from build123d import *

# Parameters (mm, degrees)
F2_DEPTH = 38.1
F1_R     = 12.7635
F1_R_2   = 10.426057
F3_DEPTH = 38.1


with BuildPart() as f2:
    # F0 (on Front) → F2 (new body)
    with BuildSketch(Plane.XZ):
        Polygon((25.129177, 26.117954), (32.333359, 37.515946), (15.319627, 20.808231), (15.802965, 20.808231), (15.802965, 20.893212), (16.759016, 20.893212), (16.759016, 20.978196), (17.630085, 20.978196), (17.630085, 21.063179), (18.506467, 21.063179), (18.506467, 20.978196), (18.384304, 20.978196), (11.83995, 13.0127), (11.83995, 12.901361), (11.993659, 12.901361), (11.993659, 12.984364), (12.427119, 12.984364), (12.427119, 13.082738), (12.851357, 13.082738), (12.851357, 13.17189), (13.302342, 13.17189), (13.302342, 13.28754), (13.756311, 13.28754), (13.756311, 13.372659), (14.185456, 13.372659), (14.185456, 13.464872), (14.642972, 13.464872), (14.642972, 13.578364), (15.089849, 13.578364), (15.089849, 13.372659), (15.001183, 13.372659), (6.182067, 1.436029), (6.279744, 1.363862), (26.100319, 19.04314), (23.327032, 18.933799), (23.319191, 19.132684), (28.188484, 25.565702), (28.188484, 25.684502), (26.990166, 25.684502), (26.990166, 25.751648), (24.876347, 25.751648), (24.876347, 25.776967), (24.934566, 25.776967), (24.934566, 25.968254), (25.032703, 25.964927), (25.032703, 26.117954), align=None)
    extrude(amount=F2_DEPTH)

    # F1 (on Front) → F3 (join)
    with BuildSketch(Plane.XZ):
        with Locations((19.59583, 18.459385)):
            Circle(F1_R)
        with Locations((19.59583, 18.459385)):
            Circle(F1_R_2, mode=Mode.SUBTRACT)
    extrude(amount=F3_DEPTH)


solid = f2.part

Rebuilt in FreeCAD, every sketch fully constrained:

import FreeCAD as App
import Part
import Sketcher
from FreeCAD import Vector
Q = App.Units.Quantity

doc = App.newDocument("Part")
body = doc.addObject("PartDesign::Body", "Body")

sketch1 = doc.addObject("Sketcher::SketchObject", "Sketch")
body.addObject(sketch1)
sketch1.AttachmentSupport = (doc.XZ_Plane, [""])
sketch1.MapMode = "FlatFace"
sketch1.addGeometry(Part.LineSegment(Vector(25.129, 26.118, 0), Vector(32.333, 37.516, 0)), False)
sketch1.addGeometry(Part.LineSegment(Vector(32.333, 37.516, 0), Vector(15.32, 20.808, 0)), False)
sketch1.addGeometry(Part.LineSegment(Vector(15.32, 20.808, 0), Vector(15.803, 20.808, 0)), False)
sketch1.addGeometry(Part.LineSegment(Vector(15.803, 20.808, 0), Vector(15.803, 20.893, 0)), False)
sketch1.addGeometry(Part.LineSegment(Vector(15.803, 20.893, 0), Vector(16.759, 20.893, 0)), False)
sketch1.addGeometry(Part.LineSegment(Vector(16.759, 20.893, 0), Vector(16.759, 20.978, 0)), False)
sketch1.addGeometry(Part.LineSegment(Vector(16.759, 20.978, 0), Vector(17.63, 20.978, 0)), False)
sketch1.addGeometry(Part.LineSegment(Vector(17.63, 20.978, 0), Vector(17.63, 21.063, 0)), False)
sketch1.addGeometry(Part.LineSegment(Vector(17.63, 21.063, 0), Vector(18.506, 21.063, 0)), False)
sketch1.addGeometry(Part.LineSegment(Vector(18.506, 21.063, 0), Vector(18.506, 20.978, 0)), False)
sketch1.addGeometry(Part.LineSegment(Vector(18.506, 20.978, 0), Vector(18.384, 20.978, 0)), False)
sketch1.addGeometry(Part.LineSegment(Vector(18.384, 20.978, 0), Vector(11.84, 13.013, 0)), False)
sketch1.addGeometry(Part.LineSegment(Vector(11.84, 13.013, 0), Vector(11.84, 12.901, 0)), False)
sketch1.addGeometry(Part.LineSegment(Vector(11.84, 12.901, 0), Vector(11.994, 12.901, 0)), False)
sketch1.addGeometry(Part.LineSegment(Vector(11.994, 12.901, 0), Vector(11.994, 12.984, 0)), False)
sketch1.addGeometry(Part.LineSegment(Vector(11.994, 12.984, 0), Vector(12.427, 12.984, 0)), False)
sketch1.addGeometry(Part.LineSegment(Vector(12.427, 12.984, 0), Vector(12.427, 13.083, 0)), False)
sketch1.addGeometry(Part.LineSegment(Vector(12.427, 13.083, 0), Vector(12.851, 13.083, 0)), False)
sketch1.addGeometry(Part.LineSegment(Vector(12.851, 13.083, 0), Vector(12.851, 13.172, 0)), False)
sketch1.addGeometry(Part.LineSegment(Vector(12.851, 13.172, 0), Vector(13.302, 13.172, 0)), False)
sketch1.addGeometry(Part.LineSegment(Vector(13.302, 13.172, 0), Vector(13.302, 13.288, 0)), False)
sketch1.addGeometry(Part.LineSegment(Vector(13.302, 13.288, 0), Vector(13.756, 13.288, 0)), False)
sketch1.addGeometry(Part.LineSegment(Vector(13.756, 13.288, 0), Vector(13.756, 13.373, 0)), False)
sketch1.addGeometry(Part.LineSegment(Vector(13.756, 13.373, 0), Vector(14.185, 13.373, 0)), False)
sketch1.addGeometry(Part.LineSegment(Vector(14.185, 13.373, 0), Vector(14.185, 13.465, 0)), False)
sketch1.addGeometry(Part.LineSegment(Vector(14.185, 13.465, 0), Vector(14.643, 13.465, 0)), False)
sketch1.addGeometry(Part.LineSegment(Vector(14.643, 13.465, 0), Vector(14.643, 13.578, 0)), False)
sketch1.addGeometry(Part.LineSegment(Vector(14.643, 13.578, 0), Vector(15.09, 13.578, 0)), False)
sketch1.addGeometry(Part.LineSegment(Vector(15.09, 13.578, 0), Vector(15.09, 13.373, 0)), False)
sketch1.addGeometry(Part.LineSegment(Vector(15.09, 13.373, 0), Vector(15.001, 13.373, 0)), False)
sketch1.addGeometry(Part.LineSegment(Vector(15.001, 13.373, 0), Vector(6.182, 1.436, 0)), False)
sketch1.addGeometry(Part.LineSegment(Vector(6.182, 1.436, 0), Vector(6.28, 1.364, 0)), False)
sketch1.addGeometry(Part.LineSegment(Vector(6.28, 1.364, 0), Vector(26.1, 19.043, 0)), False)
sketch1.addGeometry(Part.LineSegment(Vector(26.1, 19.043, 0), Vector(23.327, 18.934, 0)), False)
sketch1.addGeometry(Part.LineSegment(Vector(23.327, 18.934, 0), Vector(23.319, 19.133, 0)), False)
sketch1.addGeometry(Part.LineSegment(Vector(23.319, 19.133, 0), Vector(28.188, 25.566, 0)), False)
sketch1.addGeometry(Part.LineSegment(Vector(28.188, 25.566, 0), Vector(28.188, 25.685, 0)), False)
sketch1.addGeometry(Part.LineSegment(Vector(28.188, 25.685, 0), Vector(26.99, 25.685, 0)), False)
sketch1.addGeometry(Part.LineSegment(Vector(26.99, 25.685, 0), Vector(26.99, 25.752, 0)), False)
sketch1.addGeometry(Part.LineSegment(Vector(26.99, 25.752, 0), Vector(24.876, 25.752, 0)), False)
sketch1.addGeometry(Part.LineSegment(Vector(24.876, 25.752, 0), Vector(24.876, 25.777, 0)), False)
sketch1.addGeometry(Part.LineSegment(Vector(24.876, 25.777, 0), Vector(24.935, 25.777, 0)), False)
sketch1.addGeometry(Part.LineSegment(Vector(24.935, 25.777, 0), Vector(24.935, 25.968, 0)), False)
sketch1.addGeometry(Part.LineSegment(Vector(24.935, 25.968, 0), Vector(25.033, 25.965, 0)), False)
sketch1.addGeometry(Part.LineSegment(Vector(25.033, 25.965, 0), Vector(25.033, 26.118, 0)), False)
sketch1.addGeometry(Part.LineSegment(Vector(25.033, 26.118, 0), Vector(25.129, 26.118, 0)), False)
sketch1.addConstraint(Sketcher.Constraint("Coincident", 0, 2, 1, 1))
sketch1.addConstraint(Sketcher.Constraint("Coincident", 1, 2, 2, 1))
sketch1.addConstraint(Sketcher.Constraint("Coincident", 2, 2, 3, 1))
sketch1.addConstraint(Sketcher.Constraint("Coincident", 3, 2, 4, 1))
sketch1.addConstraint(Sketcher.Constraint("Coincident", 4, 2, 5, 1))
sketch1.addConstraint(Sketcher.Constraint("Coincident", 5, 2, 6, 1))
sketch1.addConstraint(Sketcher.Constraint("Coincident", 6, 2, 7, 1))
sketch1.addConstraint(Sketcher.Constraint("Coincident", 7, 2, 8, 1))
sketch1.addConstraint(Sketcher.Constraint("Coincident", 8, 2, 9, 1))
sketch1.addConstraint(Sketcher.Constraint("Coincident", 9, 2, 10, 1))
sketch1.addConstraint(Sketcher.Constraint("Coincident", 10, 2, 11, 1))
sketch1.addConstraint(Sketcher.Constraint("Coincident", 11, 2, 12, 1))
sketch1.addConstraint(Sketcher.Constraint("Coincident", 12, 2, 13, 1))
sketch1.addConstraint(Sketcher.Constraint("Coincident", 13, 2, 14, 1))
sketch1.addConstraint(Sketcher.Constraint("Coincident", 14, 2, 15, 1))
sketch1.addConstraint(Sketcher.Constraint("Coincident", 15, 2, 16, 1))
sketch1.addConstraint(Sketcher.Constraint("Coincident", 16, 2, 17, 1))
sketch1.addConstraint(Sketcher.Constraint("Coincident", 17, 2, 18, 1))
sketch1.addConstraint(Sketcher.Constraint("Coincident", 18, 2, 19, 1))
sketch1.addConstraint(Sketcher.Constraint("Coincident", 19, 2, 20, 1))
sketch1.addConstraint(Sketcher.Constraint("Coincident", 20, 2, 21, 1))
sketch1.addConstraint(Sketcher.Constraint("Coincident", 21, 2, 22, 1))
sketch1.addConstraint(Sketcher.Constraint("Coincident", 22, 2, 23, 1))
sketch1.addConstraint(Sketcher.Constraint("Coincident", 23, 2, 24, 1))
sketch1.addConstraint(Sketcher.Constraint("Coincident", 24, 2, 25, 1))
sketch1.addConstraint(Sketcher.Constraint("Coincident", 25, 2, 26, 1))
sketch1.addConstraint(Sketcher.Constraint("Coincident", 26, 2, 27, 1))
sketch1.addConstraint(Sketcher.Constraint("Coincident", 27, 2, 28, 1))
sketch1.addConstraint(Sketcher.Constraint("Coincident", 28, 2, 29, 1))
sketch1.addConstraint(Sketcher.Constraint("Coincident", 29, 2, 30, 1))
sketch1.addConstraint(Sketcher.Constraint("Coincident", 30, 2, 31, 1))
sketch1.addConstraint(Sketcher.Constraint("Coincident", 31, 2, 32, 1))
sketch1.addConstraint(Sketcher.Constraint("Coincident", 32, 2, 33, 1))
sketch1.addConstraint(Sketcher.Constraint("Coincident", 33, 2, 34, 1))
sketch1.addConstraint(Sketcher.Constraint("Coincident", 34, 2, 35, 1))
sketch1.addConstraint(Sketcher.Constraint("Coincident", 35, 2, 36, 1))
sketch1.addConstraint(Sketcher.Constraint("Coincident", 36, 2, 37, 1))
sketch1.addConstraint(Sketcher.Constraint("Coincident", 37, 2, 38, 1))
sketch1.addConstraint(Sketcher.Constraint("Coincident", 38, 2, 39, 1))
sketch1.addConstraint(Sketcher.Constraint("Coincident", 39, 2, 40, 1))
sketch1.addConstraint(Sketcher.Constraint("Coincident", 40, 2, 41, 1))
sketch1.addConstraint(Sketcher.Constraint("Coincident", 41, 2, 42, 1))
sketch1.addConstraint(Sketcher.Constraint("Coincident", 42, 2, 43, 1))
sketch1.addConstraint(Sketcher.Constraint("Coincident", 43, 2, 44, 1))
sketch1.addConstraint(Sketcher.Constraint("Coincident", 44, 2, 45, 1))
sketch1.addConstraint(Sketcher.Constraint("Coincident", 45, 2, 0, 1))
sketch1.addConstraint(Sketcher.Constraint("Horizontal", 2))
sketch1.addConstraint(Sketcher.Constraint("Vertical", 3))
sketch1.addConstraint(Sketcher.Constraint("Horizontal", 4))
sketch1.addConstraint(Sketcher.Constraint("Vertical", 5))
sketch1.addConstraint(Sketcher.Constraint("Horizontal", 6))
sketch1.addConstraint(Sketcher.Constraint("Vertical", 7))
sketch1.addConstraint(Sketcher.Constraint("Horizontal", 8))
sketch1.addConstraint(Sketcher.Constraint("Vertical", 9))
sketch1.addConstraint(Sketcher.Constraint("Horizontal", 10))
sketch1.addConstraint(Sketcher.Constraint("Vertical", 12))
sketch1.addConstraint(Sketcher.Constraint("Horizontal", 13))
sketch1.addConstraint(Sketcher.Constraint("Vertical", 14))
sketch1.addConstraint(Sketcher.Constraint("Horizontal", 15))
sketch1.addConstraint(Sketcher.Constraint("Vertical", 16))
sketch1.addConstraint(Sketcher.Constraint("Horizontal", 17))
sketch1.addConstraint(Sketcher.Constraint("Vertical", 18))
sketch1.addConstraint(Sketcher.Constraint("Horizontal", 19))
sketch1.addConstraint(Sketcher.Constraint("Vertical", 20))
sketch1.addConstraint(Sketcher.Constraint("Horizontal", 21))
sketch1.addConstraint(Sketcher.Constraint("Vertical", 22))
sketch1.addConstraint(Sketcher.Constraint("Horizontal", 23))
sketch1.addConstraint(Sketcher.Constraint("Vertical", 24))
sketch1.addConstraint(Sketcher.Constraint("Horizontal", 25))
sketch1.addConstraint(Sketcher.Constraint("Vertical", 26))
sketch1.addConstraint(Sketcher.Constraint("Horizontal", 27))
sketch1.addConstraint(Sketcher.Constraint("Vertical", 28))
sketch1.addConstraint(Sketcher.Constraint("Horizontal", 29))
sketch1.addConstraint(Sketcher.Constraint("Vertical", 36))
sketch1.addConstraint(Sketcher.Constraint("Horizontal", 37))
sketch1.addConstraint(Sketcher.Constraint("Vertical", 38))
sketch1.addConstraint(Sketcher.Constraint("Horizontal", 39))
sketch1.addConstraint(Sketcher.Constraint("Vertical", 40))
sketch1.addConstraint(Sketcher.Constraint("Horizontal", 41))
sketch1.addConstraint(Sketcher.Constraint("Vertical", 42))
sketch1.addConstraint(Sketcher.Constraint("Vertical", 44))
sketch1.addConstraint(Sketcher.Constraint("Horizontal", 45))
sketch1.addConstraint(Sketcher.Constraint("Perpendicular", 33, 34))
sketch1.addConstraint(Sketcher.Constraint("Horizontal", 6, 2, 9, 2))
sketch1.addConstraint(Sketcher.Constraint("Horizontal", 23, 2, 28, 2))
sketch1.addConstraint(Sketcher.Constraint("Equal", 5, 7))
sketch1.addConstraint(Sketcher.Constraint("DistanceY", 36, 1, 36, 2, Q("0.1188 mm")))
sketch1.addConstraint(Sketcher.Constraint("DistanceY", 31, 2, 14, 2, Q("0.4575001 in")))
sketch1.addConstraint(Sketcher.Constraint("DistanceY", 41, 2, 43, 2, Q("0.0074 in")))
sketch1.addConstraint(Sketcher.Constraint("DistanceX", 4, 1, 4, 2, Q("0.956051 mm")))
sketch1.addConstraint(Sketcher.Constraint("DistanceX", 6, 1, 6, 2, Q("0.871069 mm")))
sketch1.addConstraint(Sketcher.Constraint("DistanceX", 8, 1, 8, 2, Q("0.876382 mm")))
sketch1.addConstraint(Sketcher.Constraint("DistanceX", 13, 1, 13, 2, Q("0.153709 mm")))
sketch1.addConstraint(Sketcher.Constraint("DistanceX", 15, 1, 15, 2, Q("0.43346 mm")))
sketch1.addConstraint(Sketcher.Constraint("DistanceX", 17, 1, 17, 2, Q("0.424238 mm")))
sketch1.addConstraint(Sketcher.Constraint("DistanceX", 21, 1, 21, 2, Q("0.453969 mm")))
sketch1.addConstraint(Sketcher.Constraint("DistanceX", 37, 2, 37, 1, Q("1.198318 mm")))
sketch1.addConstraint(Sketcher.Constraint("DistanceX", 39, 2, 39, 1, Q("2.113819 mm")))
sketch1.addConstraint(Sketcher.Constraint("DistanceX", 41, 1, 41, 2, Q("0.058219 mm")))
sketch1.addConstraint(Sketcher.Constraint("DistanceY", 3, 1, 3, 2, Q("0.084981 mm")))
sketch1.addConstraint(Sketcher.Constraint("DistanceY", 12, 2, 12, 1, Q("0.111339 mm")))
sketch1.addConstraint(Sketcher.Constraint("DistanceY", 18, 1, 18, 2, Q("0.089152 mm")))
sketch1.addConstraint(Sketcher.Constraint("DistanceY", 20, 1, 20, 2, Q("0.11565 mm")))
sketch1.addConstraint(Sketcher.Constraint("DistanceY", 22, 1, 22, 2, Q("0.085119 mm")))
sketch1.addConstraint(Sketcher.Constraint("DistanceY", 40, 1, 40, 2, Q("0.025319 mm")))
sketch1.addConstraint(Sketcher.Constraint("DistanceY", -1, 1, 11, 2, Q("13.0127 mm")))
sketch1.addConstraint(Sketcher.Constraint("DistanceY", -1, 1, 33, 2, Q("18.933799 mm")))
sketch1.addConstraint(Sketcher.Constraint("DistanceY", -1, 1, 36, 2, Q("25.684502 mm")))
sketch1.addConstraint(Sketcher.Constraint("DistanceX", 18, 2, 23, 2, Q("1.334099 mm")))
sketch1.addConstraint(Sketcher.Constraint("DistanceY", 31, 2, 12, 2, Q("11.537499 mm")))
sketch1.addConstraint(Sketcher.Constraint("DistanceY", 42, 2, 44, 2, Q("0.1497 mm")))
sketch1.addConstraint(Sketcher.Constraint("Distance", 0, Q("13.483859 mm")))
sketch1.addConstraint(Sketcher.Constraint("Distance", 33, Q("2.775442 mm")))
sketch1.addConstraint(Sketcher.Constraint("Distance", 34, Q("0.19904 mm")))
sketch1.addConstraint(Sketcher.Constraint("Distance", 35, Q("8.068069 mm")))
sketch1.addConstraint(Sketcher.Constraint("DistanceX", 2, 1, 2, 2, Q("0.483338 mm")))
sketch1.addConstraint(Sketcher.Constraint("DistanceX", 10, 2, 10, 1, Q("0.122163 mm")))
sketch1.addConstraint(Sketcher.Constraint("DistanceX", 19, 1, 19, 2, Q("0.450985 mm")))
sketch1.addConstraint(Sketcher.Constraint("DistanceX", 25, 1, 25, 2, Q("0.457516 mm")))
sketch1.addConstraint(Sketcher.Constraint("DistanceX", 27, 1, 27, 2, Q("0.446877 mm")))
sketch1.addConstraint(Sketcher.Constraint("DistanceX", 29, 2, 29, 1, Q("0.088666 mm")))
sketch1.addConstraint(Sketcher.Constraint("DistanceX", 45, 1, 45, 2, Q("0.096474 mm")))
sketch1.addConstraint(Sketcher.Constraint("DistanceY", 5, 1, 5, 2, Q("0.084984 mm")))
sketch1.addConstraint(Sketcher.Constraint("DistanceY", 16, 1, 16, 2, Q("0.098374 mm")))
sketch1.addConstraint(Sketcher.Constraint("DistanceY", 24, 1, 24, 2, Q("0.092213 mm")))
sketch1.addConstraint(Sketcher.Constraint("DistanceY", 26, 1, 26, 2, Q("0.113492 mm")))
sketch1.addConstraint(Sketcher.Constraint("DistanceY", 38, 1, 38, 2, Q("0.067146 mm")))
sketch1.addConstraint(Sketcher.Constraint("DistanceY", 42, 1, 42, 2, Q("0.191287 mm")))
sketch1.addConstraint(Sketcher.Constraint("DistanceX", -1, 1, 0, 2, Q("32.333359 mm")))
sketch1.addConstraint(Sketcher.Constraint("DistanceY", -1, 1, 1, 2, Q("20.808231 mm")))
sketch1.addConstraint(Sketcher.Constraint("DistanceX", -1, 1, 11, 2, Q("11.83995 mm")))
sketch1.addConstraint(Sketcher.Constraint("DistanceY", -1, 1, 30, 2, Q("1.436029 mm")))
sketch1.addConstraint(Sketcher.Constraint("DistanceX", -1, 1, 32, 2, Q("26.100319 mm")))
sketch1.addConstraint(Sketcher.Constraint("DistanceY", -1, 1, 32, 2, Q("19.04314 mm")))
sketch1.addConstraint(Sketcher.Constraint("DistanceY", 5, 2, 0, 2, Q("16.53775 mm")))
sketch1.addConstraint(Sketcher.Constraint("DistanceX", 13, 2, 1, 2, Q("3.325968 mm")))
sketch1.addConstraint(Sketcher.Constraint("DistanceX", 30, 2, 13, 2, Q("5.811592 mm")))
sketch1.addConstraint(Sketcher.Constraint("Distance", 31, Q("0.121445 mm")))
pad1 = doc.addObject("PartDesign::Pad", "Pad")
body.addObject(pad1)
pad1.Profile = sketch1
pad1.Length = Q("1.5 in")

sketch2 = doc.addObject("Sketcher::SketchObject", "Sketch001")
body.addObject(sketch2)
sketch2.AttachmentSupport = (doc.XZ_Plane, [""])
sketch2.MapMode = "FlatFace"
sketch2.addGeometry(Part.Circle(Vector(20, 18, 0), Vector(0, 0, 1), 13), False)
sketch2.addGeometry(Part.Circle(Vector(20, 18, 0), Vector(0, 0, 1), 10), False)
sketch2.addConstraint(Sketcher.Constraint("Coincident", 1, 3, 0, 3))
sketch2.addConstraint(Sketcher.Constraint("Diameter", 0, Q("1.005 in")))
sketch2.addConstraint(Sketcher.Constraint("Diameter", 1, Q("20.852114 mm")))
sketch2.addConstraint(Sketcher.Constraint("DistanceX", -1, 1, 0, 3, Q("19.59583 mm")))
sketch2.addConstraint(Sketcher.Constraint("DistanceY", -1, 1, 0, 3, Q("18.459385 mm")))
pad2 = doc.addObject("PartDesign::Pad", "Pad001")
body.addObject(pad2)
pad2.Profile = sketch2
pad2.Length = Q("1.5 in")

doc.recompute()
